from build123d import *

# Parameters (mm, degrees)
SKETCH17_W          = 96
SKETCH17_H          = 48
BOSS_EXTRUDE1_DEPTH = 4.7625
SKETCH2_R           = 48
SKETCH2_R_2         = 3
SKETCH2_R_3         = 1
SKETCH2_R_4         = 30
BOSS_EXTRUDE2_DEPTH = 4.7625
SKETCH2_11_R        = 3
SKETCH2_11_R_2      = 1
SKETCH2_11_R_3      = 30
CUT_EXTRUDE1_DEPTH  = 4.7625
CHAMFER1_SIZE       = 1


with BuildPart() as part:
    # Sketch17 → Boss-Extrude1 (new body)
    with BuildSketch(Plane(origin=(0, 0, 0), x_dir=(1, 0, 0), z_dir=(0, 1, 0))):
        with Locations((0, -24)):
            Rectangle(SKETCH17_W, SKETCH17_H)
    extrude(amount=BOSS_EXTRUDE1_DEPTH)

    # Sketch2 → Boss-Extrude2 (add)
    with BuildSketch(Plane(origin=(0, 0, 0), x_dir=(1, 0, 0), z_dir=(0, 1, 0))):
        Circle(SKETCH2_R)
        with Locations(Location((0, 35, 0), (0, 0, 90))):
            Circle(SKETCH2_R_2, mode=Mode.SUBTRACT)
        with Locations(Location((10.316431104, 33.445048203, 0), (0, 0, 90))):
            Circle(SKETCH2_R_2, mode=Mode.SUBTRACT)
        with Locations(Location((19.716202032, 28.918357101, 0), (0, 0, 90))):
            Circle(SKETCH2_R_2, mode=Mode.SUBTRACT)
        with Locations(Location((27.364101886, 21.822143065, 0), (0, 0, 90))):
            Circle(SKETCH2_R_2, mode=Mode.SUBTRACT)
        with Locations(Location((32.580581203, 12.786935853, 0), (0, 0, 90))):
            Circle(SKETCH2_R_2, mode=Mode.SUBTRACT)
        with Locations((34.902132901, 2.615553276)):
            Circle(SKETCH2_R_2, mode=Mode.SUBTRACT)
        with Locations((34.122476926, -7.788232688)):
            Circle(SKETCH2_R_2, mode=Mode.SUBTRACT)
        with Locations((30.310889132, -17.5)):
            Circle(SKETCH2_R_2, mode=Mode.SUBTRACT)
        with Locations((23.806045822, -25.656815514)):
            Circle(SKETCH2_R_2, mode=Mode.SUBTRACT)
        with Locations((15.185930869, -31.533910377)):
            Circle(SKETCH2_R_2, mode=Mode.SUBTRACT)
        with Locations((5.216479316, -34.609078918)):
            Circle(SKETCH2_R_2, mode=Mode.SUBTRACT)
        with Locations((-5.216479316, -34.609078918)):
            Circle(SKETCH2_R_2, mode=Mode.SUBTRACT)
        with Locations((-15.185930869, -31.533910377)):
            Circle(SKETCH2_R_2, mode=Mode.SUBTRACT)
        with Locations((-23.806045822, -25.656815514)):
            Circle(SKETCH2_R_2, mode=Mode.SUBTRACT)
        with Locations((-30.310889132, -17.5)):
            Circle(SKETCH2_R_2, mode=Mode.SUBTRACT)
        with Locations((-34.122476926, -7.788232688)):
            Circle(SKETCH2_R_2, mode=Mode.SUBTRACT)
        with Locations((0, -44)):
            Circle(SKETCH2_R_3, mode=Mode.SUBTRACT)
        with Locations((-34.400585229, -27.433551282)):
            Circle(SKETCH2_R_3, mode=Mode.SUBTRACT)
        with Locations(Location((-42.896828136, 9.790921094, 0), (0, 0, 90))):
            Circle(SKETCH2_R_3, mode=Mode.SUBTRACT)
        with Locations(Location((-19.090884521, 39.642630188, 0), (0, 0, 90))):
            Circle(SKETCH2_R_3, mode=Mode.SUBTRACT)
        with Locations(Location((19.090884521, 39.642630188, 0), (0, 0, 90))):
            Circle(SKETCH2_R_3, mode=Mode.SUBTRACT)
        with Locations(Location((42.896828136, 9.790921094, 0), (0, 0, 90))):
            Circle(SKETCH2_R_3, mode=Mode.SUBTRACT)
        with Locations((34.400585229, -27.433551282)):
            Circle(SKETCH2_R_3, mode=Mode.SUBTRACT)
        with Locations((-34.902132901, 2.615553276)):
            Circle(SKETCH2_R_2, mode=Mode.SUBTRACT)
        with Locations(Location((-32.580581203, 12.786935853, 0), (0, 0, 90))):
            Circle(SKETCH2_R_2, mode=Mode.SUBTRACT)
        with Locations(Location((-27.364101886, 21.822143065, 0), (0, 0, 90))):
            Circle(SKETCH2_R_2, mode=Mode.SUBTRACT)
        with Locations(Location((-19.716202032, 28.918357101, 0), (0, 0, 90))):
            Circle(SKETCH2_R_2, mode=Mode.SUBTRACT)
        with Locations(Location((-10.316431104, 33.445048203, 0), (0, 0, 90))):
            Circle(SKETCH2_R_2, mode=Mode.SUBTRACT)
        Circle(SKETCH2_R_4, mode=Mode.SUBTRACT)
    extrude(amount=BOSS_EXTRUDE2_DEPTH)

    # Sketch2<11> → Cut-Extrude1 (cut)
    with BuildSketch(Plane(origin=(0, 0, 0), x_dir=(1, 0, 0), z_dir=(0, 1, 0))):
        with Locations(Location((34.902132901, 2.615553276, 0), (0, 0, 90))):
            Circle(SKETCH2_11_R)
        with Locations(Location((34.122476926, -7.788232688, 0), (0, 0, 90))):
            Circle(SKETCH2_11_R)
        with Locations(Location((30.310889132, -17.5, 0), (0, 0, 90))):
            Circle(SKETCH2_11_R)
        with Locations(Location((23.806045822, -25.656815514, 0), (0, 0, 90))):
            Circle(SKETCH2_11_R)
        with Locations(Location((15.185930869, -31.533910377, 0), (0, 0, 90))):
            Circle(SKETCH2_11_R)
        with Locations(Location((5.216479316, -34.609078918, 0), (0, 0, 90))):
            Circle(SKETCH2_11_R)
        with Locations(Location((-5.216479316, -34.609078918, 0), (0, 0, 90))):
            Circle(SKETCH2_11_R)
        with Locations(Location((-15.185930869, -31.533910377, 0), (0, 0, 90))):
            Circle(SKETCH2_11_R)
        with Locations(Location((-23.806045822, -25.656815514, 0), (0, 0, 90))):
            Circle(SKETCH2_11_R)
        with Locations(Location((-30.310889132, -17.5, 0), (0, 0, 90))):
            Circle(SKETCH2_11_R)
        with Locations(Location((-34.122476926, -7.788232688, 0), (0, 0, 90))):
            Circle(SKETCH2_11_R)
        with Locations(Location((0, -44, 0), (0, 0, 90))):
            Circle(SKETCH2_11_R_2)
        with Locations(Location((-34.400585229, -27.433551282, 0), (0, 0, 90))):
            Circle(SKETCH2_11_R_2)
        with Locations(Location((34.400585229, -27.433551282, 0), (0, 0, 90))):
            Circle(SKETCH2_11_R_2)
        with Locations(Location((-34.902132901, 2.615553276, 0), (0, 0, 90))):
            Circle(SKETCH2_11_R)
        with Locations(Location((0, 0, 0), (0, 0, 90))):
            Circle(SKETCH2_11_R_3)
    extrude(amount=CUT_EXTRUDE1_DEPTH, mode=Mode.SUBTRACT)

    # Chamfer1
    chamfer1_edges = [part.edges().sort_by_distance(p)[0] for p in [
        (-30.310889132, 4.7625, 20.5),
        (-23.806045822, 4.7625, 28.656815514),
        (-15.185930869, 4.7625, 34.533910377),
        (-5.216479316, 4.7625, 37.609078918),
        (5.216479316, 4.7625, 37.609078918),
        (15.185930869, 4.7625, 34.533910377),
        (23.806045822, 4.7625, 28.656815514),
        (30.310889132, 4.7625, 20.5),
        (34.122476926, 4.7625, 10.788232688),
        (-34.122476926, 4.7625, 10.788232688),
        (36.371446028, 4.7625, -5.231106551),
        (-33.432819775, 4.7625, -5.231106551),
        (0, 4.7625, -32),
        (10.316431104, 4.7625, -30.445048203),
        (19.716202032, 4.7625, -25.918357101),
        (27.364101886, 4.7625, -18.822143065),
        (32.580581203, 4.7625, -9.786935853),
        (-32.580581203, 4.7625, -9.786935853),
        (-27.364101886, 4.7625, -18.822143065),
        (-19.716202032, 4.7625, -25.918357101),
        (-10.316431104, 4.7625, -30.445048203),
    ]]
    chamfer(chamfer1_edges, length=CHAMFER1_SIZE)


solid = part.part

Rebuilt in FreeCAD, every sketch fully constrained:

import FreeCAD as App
import Part
import Sketcher
Q = App.Units.Quantity


def edges_at(feature, points):
    """Names of the edges that pass closest to the given points."""
    edges = feature.Shape.Edges
    near = lambda p: min(range(len(edges)), key=lambda i: edges[i].distToShape(Part.Vertex(*p))[0])
    return sorted({f"Edge{near(p) + 1}" for p in points})

doc = App.newDocument("Part")
body = doc.addObject("PartDesign::Body", "Body")

sketch1 = doc.addObject("Sketcher::SketchObject", "Sketch")
body.addObject(sketch1)
sketch1.AttachmentSupport = (doc.XZ_Plane, [""])
sketch1.MapMode = "FlatFace"
sketch1.addGeometry([
    Part.LineSegment(App.Vector(-48, 0, 0), App.Vector(-48, 48, 0)),
    Part.LineSegment(App.Vector(-48, 48, 0), App.Vector(48, 48, 0)),
    Part.LineSegment(App.Vector(48, 48, 0), App.Vector(48, 0, 0)),
    Part.LineSegment(App.Vector(48, 0, 0), App.Vector(-48, 0, 0)),
], False)
sketch1.addConstraint([
    Sketcher.Constraint("Coincident", 0, 2, 1, 1),
    Sketcher.Constraint("Coincident", 1, 2, 2, 1),
    Sketcher.Constraint("Coincident", 2, 2, 3, 1),
    Sketcher.Constraint("Coincident", 3, 2, 0, 1),
    Sketcher.Constraint("Vertical", 0),
    Sketcher.Constraint("Horizontal", 1),
    Sketcher.Constraint("Vertical", 2),
    Sketcher.Constraint("Horizontal", 3),
    Sketcher.Constraint("Symmetric", 2, 2, 3, 2, -1, 1),
    Sketcher.Constraint("DistanceX", 1, 1, 1, 2, Q("96 mm")),
    Sketcher.Constraint("DistanceY", 0, 1, 0, 2, Q("48 mm")),
])
pad1 = doc.addObject("PartDesign::Pad", "Pad")
body.addObject(pad1)
pad1.Profile = sketch1
pad1.Length = 4.7625
pad1.Reversed = True

sketch2 = doc.addObject("Sketcher::SketchObject", "Sketch001")
body.addObject(sketch2)
sketch2.AttachmentSupport = (doc.XZ_Plane, [""])
sketch2.MapMode = "FlatFace"
sketch2.addGeometry([
    Part.Circle(App.Vector(0, 0, 0), App.Vector(0, 0, 1), 48),
    Part.Circle(App.Vector(-34.400585, 27.433551, 0), App.Vector(0, 0, 1), 1),
    Part.Circle(App.Vector(-23.806046, 25.656816, 0), App.Vector(0, 0, 1), 3),
    Part.Circle(App.Vector(-5.216479, 34.609079, 0), App.Vector(0, 0, 1), 3),
    Part.Circle(App.Vector(-15.185931, 31.53391, 0), App.Vector(0, 0, 1), 3),
    Part.Circle(App.Vector(-30.310889, 17.5, 0), App.Vector(0, 0, 1), 3),
    Part.Circle(App.Vector(-34.122477, 7.788233, 0), App.Vector(0, 0, 1), 3),
    Part.Circle(App.Vector(0, 44, 0), App.Vector(0, 0, 1), 1),
    Part.Circle(App.Vector(5.216479, 34.609079, 0), App.Vector(0, 0, 1), 3),
    Part.Circle(App.Vector(15.185931, 31.53391, 0), App.Vector(0, 0, 1), 3),
    Part.Circle(App.Vector(23.806046, 25.656816, 0), App.Vector(0, 0, 1), 3),
    Part.Circle(App.Vector(34.400585, 27.433551, 0), App.Vector(0, 0, 1), 1),
    Part.Circle(App.Vector(30.310889, 17.5, 0), App.Vector(0, 0, 1), 3),
    Part.Circle(App.Vector(34.122477, 7.788233, 0), App.Vector(0, 0, 1), 3),
    Part.Circle(App.Vector(-34.902133, -2.615553, 0), App.Vector(0, 0, 1), 3),
    Part.Circle(App.Vector(-42.896828, -9.790921, 0), App.Vector(0, 0, 1), 1),
    Part.Circle(App.Vector(-32.580581, -12.786936, 0), App.Vector(0, 0, 1), 3),
    Part.Circle(App.Vector(-27.364102, -21.822143, 0), App.Vector(0, 0, 1), 3),
    Part.Circle(App.Vector(-19.716202, -28.918357, 0), App.Vector(0, 0, 1), 3),
    Part.Circle(App.Vector(-19.090885, -39.64263, 0), App.Vector(0, 0, 1), 1),
    Part.Circle(App.Vector(-10.316431, -33.445048, 0), App.Vector(0, 0, 1), 3),
    Part.Circle(App.Vector(0, 0, 0), App.Vector(0, 0, 1), 30),
    Part.Circle(App.Vector(34.902133, -2.615553, 0), App.Vector(0, 0, 1), 3),
    Part.Circle(App.Vector(32.580581, -12.786936, 0), App.Vector(0, 0, 1), 3),
    Part.Circle(App.Vector(42.896828, -9.790921, 0), App.Vector(0, 0, 1), 1),
    Part.Circle(App.Vector(19.716202, -28.918357, 0), App.Vector(0, 0, 1), 3),
    Part.Circle(App.Vector(0, -35, 0), App.Vector(0, 0, 1), 3),
    Part.Circle(App.Vector(10.316431, -33.445048, 0), App.Vector(0, 0, 1), 3),
    Part.Circle(App.Vector(19.090885, -39.64263, 0), App.Vector(0, 0, 1), 1),
    Part.Circle(App.Vector(27.364102, -21.822143, 0), App.Vector(0, 0, 1), 3),
], False)
sketch2.addConstraint([
    Sketcher.Constraint("Coincident", 0, 3, -1, 1),
    Sketcher.Constraint("Coincident", 21, 3, -1, 1),
    Sketcher.Constraint("Equal", 2, 3),
    Sketcher.Constraint("Equal", 3, 4),
    Sketcher.Constraint("Equal", 4, 5),
    Sketcher.Constraint("Equal", 5, 6),
    Sketcher.Constraint("Equal", 1, 7),
    Sketcher.Constraint("Equal", 6, 8),
    Sketcher.Constraint("Equal", 8, 9),
    Sketcher.Constraint("Equal", 9, 10),
    Sketcher.Constraint("Equal", 7, 11),
    Sketcher.Constraint("Equal", 10, 12),
    Sketcher.Constraint("Equal", 12, 13),
    Sketcher.Constraint("Equal", 13, 14),
    Sketcher.Constraint("Equal", 11, 15),
    Sketcher.Constraint("Equal", 14, 16),
    Sketcher.Constraint("Equal", 16, 17),
    Sketcher.Constraint("Equal", 17, 18),
    Sketcher.Constraint("Equal", 15, 19),
    Sketcher.Constraint("Equal", 18, 20),
    Sketcher.Constraint("Equal", 20, 22),
    Sketcher.Constraint("Equal", 22, 23),
    Sketcher.Constraint("Equal", 19, 24),
    Sketcher.Constraint("Equal", 23, 25),
    Sketcher.Constraint("Equal", 25, 26),
    Sketcher.Constraint("Equal", 26, 27),
    Sketcher.Constraint("Equal", 24, 28),
    Sketcher.Constraint("Equal", 27, 29),
    Sketcher.Constraint("Symmetric", 3, 3, 8, 3, -2),
    Sketcher.Constraint("Symmetric", 4, 3, 9, 3, -2),
    Sketcher.Constraint("Symmetric", 2, 3, 10, 3, -2),
    Sketcher.Constraint("Symmetric", 1, 3, 11, 3, -2),
    Sketcher.Constraint("Symmetric", 5, 3, 12, 3, -2),
    Sketcher.Constraint("Symmetric", 6, 3, 13, 3, -2),
    Sketcher.Constraint("Symmetric", 14, 3, 22, 3, -2),
    Sketcher.Constraint("Symmetric", 16, 3, 23, 3, -2),
    Sketcher.Constraint("Symmetric", 15, 3, 24, 3, -2),
    Sketcher.Constraint("Symmetric", 18, 3, 25, 3, -2),
    Sketcher.Constraint("Symmetric", 20, 3, 27, 3, -2),
    Sketcher.Constraint("Symmetric", 19, 3, 28, 3, -2),
    Sketcher.Constraint("Symmetric", 17, 3, 29, 3, -2),
    Sketcher.Constraint("PointOnObject", 7, 3, -2),
    Sketcher.Constraint("PointOnObject", 26, 3, -2),
    Sketcher.Constraint("Diameter", 0, Q("96 mm")),
    Sketcher.Constraint("Diameter", 1, Q("2 mm")),
    Sketcher.Constraint("Diameter", 2, Q("6 mm")),
    Sketcher.Constraint("Diameter", 21, Q("60 mm")),
    Sketcher.Constraint("DistanceY", -1, 1, 7, 3, Q("44 mm")),
    Sketcher.Constraint("DistanceY", 26, 3, -1, 1, Q("35 mm")),
    Sketcher.Constraint("DistanceY", -1, 1, 5, 3, Q("17.5 mm")),
    Sketcher.Constraint("DistanceX", 17, 3, -1, 1, Q("27.364102 mm")),
    Sketcher.Constraint("DistanceX", 17, 3, 18, 3, Q("7.6479 mm")),
    Sketcher.Constraint("DistanceY", -1, 1, 1, 3, Q("27.433551 mm")),
    Sketcher.Constraint("DistanceX", 3, 3, -1, 1, Q("5.216479 mm")),
    Sketcher.Constraint("DistanceY", -1, 1, 3, 3, Q("34.609079 mm")),
    Sketcher.Constraint("DistanceX", 4, 3, -1, 1, Q("15.185931 mm")),
    Sketcher.Constraint("DistanceY", -1, 1, 4, 3, Q("31.53391 mm")),
    Sketcher.Constraint("DistanceX", 5, 3, -1, 1, Q("30.310889 mm")),
    Sketcher.Constraint("DistanceX", 15, 3, -1, 1, Q("42.896828 mm")),
    Sketcher.Constraint("DistanceY", 15, 3, -1, 1, Q("9.790921 mm")),
    Sketcher.Constraint("DistanceX", 16, 3, -1, 1, Q("32.580581 mm")),
    Sketcher.Constraint("DistanceY", 19, 3, -1, 1, Q("39.64263 mm")),
    Sketcher.Constraint("DistanceX", 20, 3, -1, 1, Q("10.316431 mm")),
    Sketcher.Constraint("DistanceY", 20, 3, -1, 1, Q("33.445048 mm")),
    Sketcher.Constraint("DistanceX", 1, 3, 2, 3, Q("10.594539 mm")),
    Sketcher.Constraint("DistanceX", 1, 3, 6, 3, Q("0.278108 mm")),
    Sketcher.Constraint("DistanceY", 6, 3, 1, 3, Q("19.645319 mm")),
    Sketcher.Constraint("DistanceY", 14, 3, 2, 3, Q("28.272369 mm")),
    Sketcher.Constraint("DistanceX", 15, 3, 6, 3, Q("8.774351 mm")),
    Sketcher.Constraint("DistanceX", 14, 3, 16, 3, Q("2.321552 mm")),
    Sketcher.Constraint("DistanceY", 16, 3, 6, 3, Q("20.575169 mm")),
    Sketcher.Constraint("DistanceY", 17, 3, 15, 3, Q("12.031222 mm")),
    Sketcher.Constraint("DistanceY", 17, 3, 14, 3, Q("19.20659 mm")),
    Sketcher.Constraint("DistanceY", 18, 3, 16, 3, Q("16.131421 mm")),
    Sketcher.Constraint("DistanceX", 14, 3, 19, 3, Q("15.811248 mm")),
])
pad2 = doc.addObject("PartDesign::Pad", "Pad001")
body.addObject(pad2)
pad2.Profile = sketch2
pad2.Length = 4.7625
pad2.Reversed = True

sketch3 = doc.addObject("Sketcher::SketchObject", "Sketch002")
body.addObject(sketch3)
sketch3.AttachmentSupport = (doc.XZ_Plane, [""])
sketch3.MapMode = "FlatFace"
sketch3.addGeometry([
    Part.Circle(App.Vector(34.902133, -2.615553, 0), App.Vector(0, 0, 1), 3),
    Part.Circle(App.Vector(34.122477, 7.788233, 0), App.Vector(0, 0, 1), 3),
    Part.Circle(App.Vector(30.310889, 17.5, 0), App.Vector(0, 0, 1), 3),
    Part.Circle(App.Vector(23.806046, 25.656816, 0), App.Vector(0, 0, 1), 3),
    Part.Circle(App.Vector(15.185931, 31.53391, 0), App.Vector(0, 0, 1), 3),
    Part.Circle(App.Vector(5.216479, 34.609079, 0), App.Vector(0, 0, 1), 3),
    Part.Circle(App.Vector(-5.216479, 34.609079, 0), App.Vector(0, 0, 1), 3),
    Part.Circle(App.Vector(-15.185931, 31.53391, 0), App.Vector(0, 0, 1), 3),
    Part.Circle(App.Vector(-23.806046, 25.656816, 0), App.Vector(0, 0, 1), 3),
    Part.Circle(App.Vector(-30.310889, 17.5, 0), App.Vector(0, 0, 1), 3),
    Part.Circle(App.Vector(-34.122477, 7.788233, 0), App.Vector(0, 0, 1), 3),
    Part.Circle(App.Vector(0, 44, 0), App.Vector(0, 0, 1), 1),
    Part.Circle(App.Vector(-34.400585, 27.433551, 0), App.Vector(0, 0, 1), 1),
    Part.Circle(App.Vector(34.400585, 27.433551, 0), App.Vector(0, 0, 1), 1),
    Part.Circle(App.Vector(-34.902133, -2.615553, 0), App.Vector(0, 0, 1), 3),
    Part.Circle(App.Vector(0, 0, 0), App.Vector(0, 0, 1), 30),
], False)
sketch3.addConstraint([
    Sketcher.Constraint("Coincident", 15, 3, -1, 1),
    Sketcher.Constraint("Equal", 0, 1),
    Sketcher.Constraint("Equal", 1, 2),
    Sketcher.Constraint("Equal", 2, 3),
    Sketcher.Constraint("Equal", 3, 4),
    Sketcher.Constraint("Equal", 4, 5),
    Sketcher.Constraint("Equal", 5, 6),
    Sketcher.Constraint("Equal", 6, 7),
    Sketcher.Constraint("Equal", 7, 8),
    Sketcher.Constraint("Equal", 8, 9),
    Sketcher.Constraint("Equal", 9, 10),
    Sketcher.Constraint("Equal", 11, 12),
    Sketcher.Constraint("Equal", 12, 13),
    Sketcher.Constraint("Equal", 10, 14),
    Sketcher.Constraint("Symmetric", 5, 3, 6, 3, -2),
    Sketcher.Constraint("Symmetric", 4, 3, 7, 3, -2),
    Sketcher.Constraint("Symmetric", 3, 3, 8, 3, -2),
    Sketcher.Constraint("Symmetric", 2, 3, 9, 3, -2),
    Sketcher.Constraint("Symmetric", 1, 3, 10, 3, -2),
    Sketcher.Constraint("Symmetric", 12, 3, 13, 3, -2),
    Sketcher.Constraint("Symmetric", 0, 3, 14, 3, -2),
    Sketcher.Constraint("PointOnObject", 11, 3, -2),
    Sketcher.Constraint("Diameter", 0, Q("6 mm")),
    Sketcher.Constraint("Diameter", 11, Q("2 mm")),
    Sketcher.Constraint("Diameter", 15, Q("60 mm")),
    Sketcher.Constraint("DistanceY", -1, 1, 11, 3, Q("44 mm")),
    Sketcher.Constraint("DistanceY", -1, 1, 2, 3, Q("17.5 mm")),
    Sketcher.Constraint("DistanceX", -1, 1, 2, 3, Q("30.310889 mm")),
    Sketcher.Constraint("DistanceX", -1, 1, 4, 3, Q("15.185931 mm")),
    Sketcher.Constraint("DistanceY", -1, 1, 4, 3, Q("31.53391 mm")),
    Sketcher.Constraint("DistanceX", -1, 1, 5, 3, Q("5.216479 mm")),
    Sketcher.Constraint("DistanceY", -1, 1, 5, 3, Q("34.609079 mm")),
    Sketcher.Constraint("DistanceY", -1, 1, 12, 3, Q("27.433551 mm")),
    Sketcher.Constraint("DistanceX", 3, 3, 1, 3, Q("10.316431 mm")),
    Sketcher.Constraint("DistanceY", 0, 3, 3, 3, Q("28.272369 mm")),
    Sketcher.Constraint("DistanceX", 8, 3, 3, 3, Q("47.612092 mm")),
    Sketcher.Constraint("DistanceX", 12, 3, 8, 3, Q("10.594539 mm")),
    Sketcher.Constraint("DistanceY", 10, 3, 12, 3, Q("19.645319 mm")),
    Sketcher.Constraint("DistanceX", -1, 1, 0, 3, Q("34.902133 mm")),
    Sketcher.Constraint("DistanceY", 0, 3, -1, 1, Q("2.615553 mm")),
])
pocket1 = doc.addObject("PartDesign::Pocket", "Pocket")
body.addObject(pocket1)
pocket1.Profile = sketch3
pocket1.Length = 4.7625
doc.recompute()

chamfer = doc.addObject("PartDesign::Chamfer", "Chamfer")
body.addObject(chamfer)
chamfer.Base = (pocket1, edges_at(pocket1, [
    (-30.311, 4.763, 20.5),
    (-23.806, 4.763, 28.657),
    (-15.186, 4.763, 34.534),
    (-5.216, 4.763, 37.609),
    (5.216, 4.763, 37.609),
    (15.186, 4.763, 34.534),
    (23.806, 4.763, 28.657),
    (30.311, 4.763, 20.5),
    (34.122, 4.763, 10.788),
    (-34.122, 4.763, 10.788),
    (36.371, 4.763, -5.231),
    (-33.433, 4.763, -5.231),
    (0, 4.763, -32),
    (10.316, 4.763, -30.445),
    (19.716, 4.763, -25.918),
    (27.364, 4.763, -18.822),
    (32.581, 4.763, -9.787),
    (-32.581, 4.763, -9.787),
    (-27.364, 4.763, -18.822),
    (-19.716, 4.763, -25.918),
    (-10.316, 4.763, -30.445),
]))
chamfer.Size = 1

doc.recompute()
